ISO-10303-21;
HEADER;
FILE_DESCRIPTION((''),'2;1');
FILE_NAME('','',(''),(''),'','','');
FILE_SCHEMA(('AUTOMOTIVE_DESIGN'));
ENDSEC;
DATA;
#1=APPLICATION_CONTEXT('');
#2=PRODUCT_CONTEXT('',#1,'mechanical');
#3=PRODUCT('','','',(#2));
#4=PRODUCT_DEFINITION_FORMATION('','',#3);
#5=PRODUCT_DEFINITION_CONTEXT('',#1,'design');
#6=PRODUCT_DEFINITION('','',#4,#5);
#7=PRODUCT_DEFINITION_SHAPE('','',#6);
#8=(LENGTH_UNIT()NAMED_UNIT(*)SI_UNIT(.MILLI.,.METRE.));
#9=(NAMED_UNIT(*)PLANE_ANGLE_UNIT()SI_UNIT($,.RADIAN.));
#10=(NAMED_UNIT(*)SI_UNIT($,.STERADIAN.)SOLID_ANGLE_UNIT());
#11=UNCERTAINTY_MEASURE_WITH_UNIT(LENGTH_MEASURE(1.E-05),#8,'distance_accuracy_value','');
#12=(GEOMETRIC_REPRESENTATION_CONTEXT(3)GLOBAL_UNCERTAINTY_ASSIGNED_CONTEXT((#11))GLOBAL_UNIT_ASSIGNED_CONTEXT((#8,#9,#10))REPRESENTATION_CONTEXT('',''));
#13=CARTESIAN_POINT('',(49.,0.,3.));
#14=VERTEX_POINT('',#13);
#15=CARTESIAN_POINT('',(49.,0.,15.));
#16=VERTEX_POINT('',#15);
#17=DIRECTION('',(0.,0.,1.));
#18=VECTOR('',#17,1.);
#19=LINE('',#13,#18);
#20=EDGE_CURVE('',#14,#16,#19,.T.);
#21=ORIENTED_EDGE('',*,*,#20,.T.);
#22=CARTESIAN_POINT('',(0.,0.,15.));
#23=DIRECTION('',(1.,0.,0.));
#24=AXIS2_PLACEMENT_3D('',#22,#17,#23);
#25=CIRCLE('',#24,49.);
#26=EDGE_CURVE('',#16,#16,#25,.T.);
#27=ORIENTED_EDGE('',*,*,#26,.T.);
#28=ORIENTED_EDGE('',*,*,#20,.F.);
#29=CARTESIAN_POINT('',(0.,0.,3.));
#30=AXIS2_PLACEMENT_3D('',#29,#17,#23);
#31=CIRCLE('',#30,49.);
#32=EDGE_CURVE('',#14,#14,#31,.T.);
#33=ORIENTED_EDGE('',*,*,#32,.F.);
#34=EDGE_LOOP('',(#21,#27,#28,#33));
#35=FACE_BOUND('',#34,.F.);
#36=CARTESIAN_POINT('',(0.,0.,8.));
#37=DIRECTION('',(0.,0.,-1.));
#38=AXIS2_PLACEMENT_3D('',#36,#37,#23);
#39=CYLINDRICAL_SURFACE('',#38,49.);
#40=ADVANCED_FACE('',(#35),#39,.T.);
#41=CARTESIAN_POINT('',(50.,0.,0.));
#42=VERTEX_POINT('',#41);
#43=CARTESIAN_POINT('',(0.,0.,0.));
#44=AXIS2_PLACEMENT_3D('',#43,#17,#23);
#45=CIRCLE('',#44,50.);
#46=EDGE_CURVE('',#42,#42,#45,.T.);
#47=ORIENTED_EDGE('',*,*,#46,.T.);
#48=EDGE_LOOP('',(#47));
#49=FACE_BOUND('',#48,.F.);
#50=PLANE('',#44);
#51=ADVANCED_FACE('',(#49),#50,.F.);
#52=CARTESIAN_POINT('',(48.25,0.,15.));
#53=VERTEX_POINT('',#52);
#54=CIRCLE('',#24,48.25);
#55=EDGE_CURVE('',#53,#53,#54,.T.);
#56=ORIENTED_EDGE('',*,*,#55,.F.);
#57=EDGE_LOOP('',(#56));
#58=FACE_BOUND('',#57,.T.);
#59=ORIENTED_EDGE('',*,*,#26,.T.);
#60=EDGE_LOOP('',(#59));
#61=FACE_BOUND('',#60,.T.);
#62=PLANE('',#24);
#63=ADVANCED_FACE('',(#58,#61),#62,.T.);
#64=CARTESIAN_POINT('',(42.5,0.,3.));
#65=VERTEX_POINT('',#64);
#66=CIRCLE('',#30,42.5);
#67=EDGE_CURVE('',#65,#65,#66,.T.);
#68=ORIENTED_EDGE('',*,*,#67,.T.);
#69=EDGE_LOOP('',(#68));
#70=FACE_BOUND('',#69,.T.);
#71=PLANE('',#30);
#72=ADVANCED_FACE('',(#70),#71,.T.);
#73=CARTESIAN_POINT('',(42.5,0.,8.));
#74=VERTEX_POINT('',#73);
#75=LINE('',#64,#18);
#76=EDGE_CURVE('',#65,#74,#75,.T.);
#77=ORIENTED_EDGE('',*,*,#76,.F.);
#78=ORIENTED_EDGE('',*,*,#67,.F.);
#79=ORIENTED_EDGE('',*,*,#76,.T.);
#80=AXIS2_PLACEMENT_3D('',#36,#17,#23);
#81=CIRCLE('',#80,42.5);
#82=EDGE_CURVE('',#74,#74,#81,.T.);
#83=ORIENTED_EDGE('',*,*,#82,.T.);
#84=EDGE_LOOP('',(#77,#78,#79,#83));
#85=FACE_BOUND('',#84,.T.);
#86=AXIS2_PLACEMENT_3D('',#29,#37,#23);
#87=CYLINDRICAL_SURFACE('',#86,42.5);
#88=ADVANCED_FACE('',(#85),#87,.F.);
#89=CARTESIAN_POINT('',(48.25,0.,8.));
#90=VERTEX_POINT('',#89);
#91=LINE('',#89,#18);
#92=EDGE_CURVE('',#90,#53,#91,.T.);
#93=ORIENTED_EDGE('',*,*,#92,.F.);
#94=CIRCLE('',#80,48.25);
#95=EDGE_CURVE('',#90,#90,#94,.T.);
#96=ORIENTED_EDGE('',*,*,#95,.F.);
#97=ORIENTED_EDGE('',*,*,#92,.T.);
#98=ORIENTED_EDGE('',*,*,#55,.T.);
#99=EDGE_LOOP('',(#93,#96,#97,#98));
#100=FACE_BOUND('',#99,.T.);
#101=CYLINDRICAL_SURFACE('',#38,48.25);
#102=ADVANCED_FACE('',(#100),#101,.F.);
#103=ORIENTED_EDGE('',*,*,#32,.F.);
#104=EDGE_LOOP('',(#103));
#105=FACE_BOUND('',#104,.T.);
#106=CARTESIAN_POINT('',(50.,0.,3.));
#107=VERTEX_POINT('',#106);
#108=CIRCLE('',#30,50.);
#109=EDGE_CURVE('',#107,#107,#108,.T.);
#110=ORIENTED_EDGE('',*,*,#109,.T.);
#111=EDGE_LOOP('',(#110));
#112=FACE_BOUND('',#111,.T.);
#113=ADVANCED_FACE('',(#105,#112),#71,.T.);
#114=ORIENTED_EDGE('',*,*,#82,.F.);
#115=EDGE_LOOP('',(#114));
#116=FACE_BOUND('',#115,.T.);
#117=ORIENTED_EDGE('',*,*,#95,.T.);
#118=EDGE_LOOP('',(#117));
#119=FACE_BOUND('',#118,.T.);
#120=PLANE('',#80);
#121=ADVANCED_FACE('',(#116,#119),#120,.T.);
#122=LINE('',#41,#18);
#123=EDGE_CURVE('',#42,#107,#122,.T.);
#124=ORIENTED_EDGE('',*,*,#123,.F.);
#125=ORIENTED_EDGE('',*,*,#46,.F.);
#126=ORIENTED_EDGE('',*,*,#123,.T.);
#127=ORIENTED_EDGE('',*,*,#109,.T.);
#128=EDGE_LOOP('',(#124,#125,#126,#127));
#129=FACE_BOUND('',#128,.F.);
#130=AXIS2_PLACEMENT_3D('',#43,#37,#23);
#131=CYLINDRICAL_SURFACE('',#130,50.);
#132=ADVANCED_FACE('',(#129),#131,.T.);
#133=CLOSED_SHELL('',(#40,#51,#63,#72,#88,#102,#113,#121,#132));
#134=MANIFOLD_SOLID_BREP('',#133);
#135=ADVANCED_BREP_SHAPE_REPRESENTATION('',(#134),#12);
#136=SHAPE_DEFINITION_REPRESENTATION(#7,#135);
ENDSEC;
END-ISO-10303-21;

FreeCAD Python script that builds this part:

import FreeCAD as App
import Part
import Sketcher
Q = App.Units.Quantity

doc = App.newDocument("Part")
params = doc.addObject("Spreadsheet::Sheet", "Params")
for row, (alias, value) in enumerate([
    ("sketch1_diameter", "100 mm"),
    ("pad1_length", "3 mm"),
    ("sketch2_diameter", "98 mm"),
    ("sketch2_diameter2", "85 mm"),
    ("pad2_length", "5 mm"),
    ("sketch3_diameter", "98 mm"),
    ("sketch3_diameter2", "96.5 mm"),
    ("pad3_length", "7 mm"),
], start=1):
    params.set(f"A{row}", alias)
    params.set(f"B{row}", "=" + value)
    params.setAlias(f"B{row}", alias)

body = doc.addObject("PartDesign::Body", "Body")

sketch1 = body.newObject("Sketcher::SketchObject", "Sketch")
sketch1.AttachmentSupport = (doc.getObject("XY_Plane"), [""])
sketch1.MapMode = "FlatFace"
sketch1.addGeometry(Part.Circle(App.Vector(0, 0, 0), App.Vector(0, 0, 1), 50), False)
sketch1.addConstraint([
    Sketcher.Constraint("Coincident", 0, 3, -1, 1),
    Sketcher.Constraint("Diameter", 0, Q("100 mm")),
])
sketch1.setExpression("Constraints[1]", "Params.sketch1_diameter")
pad1 = body.newObject("PartDesign::Pad", "Pad")
pad1.Profile = sketch1
pad1.setExpression("Length", "Params.pad1_length")

sketch2 = body.newObject("Sketcher::SketchObject", "Sketch001")
sketch2.AttachmentSupport = (doc.getObject("XY_Plane"), [""])
sketch2.MapMode = "FlatFace"
sketch2.AttachmentOffset = App.Placement(App.Vector(0, 0, 3), App.Rotation())
sketch2.addGeometry([
    Part.Circle(App.Vector(0, 0, 0), App.Vector(0, 0, 1), 49),
    Part.Circle(App.Vector(0, 0, 0), App.Vector(0, 0, 1), 42.5),
], False)
sketch2.addConstraint([
    Sketcher.Constraint("Coincident", 0, 3, -1, 1),
    Sketcher.Constraint("Coincident", 1, 3, -1, 1),
    Sketcher.Constraint("Diameter", 0, Q("98 mm")),
    Sketcher.Constraint("Diameter", 1, Q("85 mm")),
])
sketch2.setExpression("Constraints[2]", "Params.sketch2_diameter")
sketch2.setExpression("Constraints[3]", "Params.sketch2_diameter2")
pad2 = body.newObject("PartDesign::Pad", "Pad001")
pad2.Profile = sketch2
pad2.setExpression("Length", "Params.pad2_length")

sketch3 = body.newObject("Sketcher::SketchObject", "Sketch002")
sketch3.AttachmentSupport = (doc.getObject("XY_Plane"), [""])
sketch3.MapMode = "FlatFace"
sketch3.AttachmentOffset = App.Placement(App.Vector(0, 0, 8), App.Rotation())
sketch3.addGeometry([
    Part.Circle(App.Vector(0, 0, 0), App.Vector(0, 0, 1), 49),
    Part.Circle(App.Vector(0, 0, 0), App.Vector(0, 0, 1), 48.25),
], False)
sketch3.addConstraint([
    Sketcher.Constraint("Coincident", 0, 3, -1, 1),
    Sketcher.Constraint("Coincident", 1, 3, -1, 1),
    Sketcher.Constraint("Diameter", 0, Q("98 mm")),
    Sketcher.Constraint("Diameter", 1, Q("96.5 mm")),
])
sketch3.setExpression("Constraints[2]", "Params.sketch3_diameter")
sketch3.setExpression("Constraints[3]", "Params.sketch3_diameter2")
pad3 = body.newObject("PartDesign::Pad", "Pad002")
pad3.Profile = sketch3
pad3.setExpression("Length", "Params.pad3_length")

doc.recompute()
